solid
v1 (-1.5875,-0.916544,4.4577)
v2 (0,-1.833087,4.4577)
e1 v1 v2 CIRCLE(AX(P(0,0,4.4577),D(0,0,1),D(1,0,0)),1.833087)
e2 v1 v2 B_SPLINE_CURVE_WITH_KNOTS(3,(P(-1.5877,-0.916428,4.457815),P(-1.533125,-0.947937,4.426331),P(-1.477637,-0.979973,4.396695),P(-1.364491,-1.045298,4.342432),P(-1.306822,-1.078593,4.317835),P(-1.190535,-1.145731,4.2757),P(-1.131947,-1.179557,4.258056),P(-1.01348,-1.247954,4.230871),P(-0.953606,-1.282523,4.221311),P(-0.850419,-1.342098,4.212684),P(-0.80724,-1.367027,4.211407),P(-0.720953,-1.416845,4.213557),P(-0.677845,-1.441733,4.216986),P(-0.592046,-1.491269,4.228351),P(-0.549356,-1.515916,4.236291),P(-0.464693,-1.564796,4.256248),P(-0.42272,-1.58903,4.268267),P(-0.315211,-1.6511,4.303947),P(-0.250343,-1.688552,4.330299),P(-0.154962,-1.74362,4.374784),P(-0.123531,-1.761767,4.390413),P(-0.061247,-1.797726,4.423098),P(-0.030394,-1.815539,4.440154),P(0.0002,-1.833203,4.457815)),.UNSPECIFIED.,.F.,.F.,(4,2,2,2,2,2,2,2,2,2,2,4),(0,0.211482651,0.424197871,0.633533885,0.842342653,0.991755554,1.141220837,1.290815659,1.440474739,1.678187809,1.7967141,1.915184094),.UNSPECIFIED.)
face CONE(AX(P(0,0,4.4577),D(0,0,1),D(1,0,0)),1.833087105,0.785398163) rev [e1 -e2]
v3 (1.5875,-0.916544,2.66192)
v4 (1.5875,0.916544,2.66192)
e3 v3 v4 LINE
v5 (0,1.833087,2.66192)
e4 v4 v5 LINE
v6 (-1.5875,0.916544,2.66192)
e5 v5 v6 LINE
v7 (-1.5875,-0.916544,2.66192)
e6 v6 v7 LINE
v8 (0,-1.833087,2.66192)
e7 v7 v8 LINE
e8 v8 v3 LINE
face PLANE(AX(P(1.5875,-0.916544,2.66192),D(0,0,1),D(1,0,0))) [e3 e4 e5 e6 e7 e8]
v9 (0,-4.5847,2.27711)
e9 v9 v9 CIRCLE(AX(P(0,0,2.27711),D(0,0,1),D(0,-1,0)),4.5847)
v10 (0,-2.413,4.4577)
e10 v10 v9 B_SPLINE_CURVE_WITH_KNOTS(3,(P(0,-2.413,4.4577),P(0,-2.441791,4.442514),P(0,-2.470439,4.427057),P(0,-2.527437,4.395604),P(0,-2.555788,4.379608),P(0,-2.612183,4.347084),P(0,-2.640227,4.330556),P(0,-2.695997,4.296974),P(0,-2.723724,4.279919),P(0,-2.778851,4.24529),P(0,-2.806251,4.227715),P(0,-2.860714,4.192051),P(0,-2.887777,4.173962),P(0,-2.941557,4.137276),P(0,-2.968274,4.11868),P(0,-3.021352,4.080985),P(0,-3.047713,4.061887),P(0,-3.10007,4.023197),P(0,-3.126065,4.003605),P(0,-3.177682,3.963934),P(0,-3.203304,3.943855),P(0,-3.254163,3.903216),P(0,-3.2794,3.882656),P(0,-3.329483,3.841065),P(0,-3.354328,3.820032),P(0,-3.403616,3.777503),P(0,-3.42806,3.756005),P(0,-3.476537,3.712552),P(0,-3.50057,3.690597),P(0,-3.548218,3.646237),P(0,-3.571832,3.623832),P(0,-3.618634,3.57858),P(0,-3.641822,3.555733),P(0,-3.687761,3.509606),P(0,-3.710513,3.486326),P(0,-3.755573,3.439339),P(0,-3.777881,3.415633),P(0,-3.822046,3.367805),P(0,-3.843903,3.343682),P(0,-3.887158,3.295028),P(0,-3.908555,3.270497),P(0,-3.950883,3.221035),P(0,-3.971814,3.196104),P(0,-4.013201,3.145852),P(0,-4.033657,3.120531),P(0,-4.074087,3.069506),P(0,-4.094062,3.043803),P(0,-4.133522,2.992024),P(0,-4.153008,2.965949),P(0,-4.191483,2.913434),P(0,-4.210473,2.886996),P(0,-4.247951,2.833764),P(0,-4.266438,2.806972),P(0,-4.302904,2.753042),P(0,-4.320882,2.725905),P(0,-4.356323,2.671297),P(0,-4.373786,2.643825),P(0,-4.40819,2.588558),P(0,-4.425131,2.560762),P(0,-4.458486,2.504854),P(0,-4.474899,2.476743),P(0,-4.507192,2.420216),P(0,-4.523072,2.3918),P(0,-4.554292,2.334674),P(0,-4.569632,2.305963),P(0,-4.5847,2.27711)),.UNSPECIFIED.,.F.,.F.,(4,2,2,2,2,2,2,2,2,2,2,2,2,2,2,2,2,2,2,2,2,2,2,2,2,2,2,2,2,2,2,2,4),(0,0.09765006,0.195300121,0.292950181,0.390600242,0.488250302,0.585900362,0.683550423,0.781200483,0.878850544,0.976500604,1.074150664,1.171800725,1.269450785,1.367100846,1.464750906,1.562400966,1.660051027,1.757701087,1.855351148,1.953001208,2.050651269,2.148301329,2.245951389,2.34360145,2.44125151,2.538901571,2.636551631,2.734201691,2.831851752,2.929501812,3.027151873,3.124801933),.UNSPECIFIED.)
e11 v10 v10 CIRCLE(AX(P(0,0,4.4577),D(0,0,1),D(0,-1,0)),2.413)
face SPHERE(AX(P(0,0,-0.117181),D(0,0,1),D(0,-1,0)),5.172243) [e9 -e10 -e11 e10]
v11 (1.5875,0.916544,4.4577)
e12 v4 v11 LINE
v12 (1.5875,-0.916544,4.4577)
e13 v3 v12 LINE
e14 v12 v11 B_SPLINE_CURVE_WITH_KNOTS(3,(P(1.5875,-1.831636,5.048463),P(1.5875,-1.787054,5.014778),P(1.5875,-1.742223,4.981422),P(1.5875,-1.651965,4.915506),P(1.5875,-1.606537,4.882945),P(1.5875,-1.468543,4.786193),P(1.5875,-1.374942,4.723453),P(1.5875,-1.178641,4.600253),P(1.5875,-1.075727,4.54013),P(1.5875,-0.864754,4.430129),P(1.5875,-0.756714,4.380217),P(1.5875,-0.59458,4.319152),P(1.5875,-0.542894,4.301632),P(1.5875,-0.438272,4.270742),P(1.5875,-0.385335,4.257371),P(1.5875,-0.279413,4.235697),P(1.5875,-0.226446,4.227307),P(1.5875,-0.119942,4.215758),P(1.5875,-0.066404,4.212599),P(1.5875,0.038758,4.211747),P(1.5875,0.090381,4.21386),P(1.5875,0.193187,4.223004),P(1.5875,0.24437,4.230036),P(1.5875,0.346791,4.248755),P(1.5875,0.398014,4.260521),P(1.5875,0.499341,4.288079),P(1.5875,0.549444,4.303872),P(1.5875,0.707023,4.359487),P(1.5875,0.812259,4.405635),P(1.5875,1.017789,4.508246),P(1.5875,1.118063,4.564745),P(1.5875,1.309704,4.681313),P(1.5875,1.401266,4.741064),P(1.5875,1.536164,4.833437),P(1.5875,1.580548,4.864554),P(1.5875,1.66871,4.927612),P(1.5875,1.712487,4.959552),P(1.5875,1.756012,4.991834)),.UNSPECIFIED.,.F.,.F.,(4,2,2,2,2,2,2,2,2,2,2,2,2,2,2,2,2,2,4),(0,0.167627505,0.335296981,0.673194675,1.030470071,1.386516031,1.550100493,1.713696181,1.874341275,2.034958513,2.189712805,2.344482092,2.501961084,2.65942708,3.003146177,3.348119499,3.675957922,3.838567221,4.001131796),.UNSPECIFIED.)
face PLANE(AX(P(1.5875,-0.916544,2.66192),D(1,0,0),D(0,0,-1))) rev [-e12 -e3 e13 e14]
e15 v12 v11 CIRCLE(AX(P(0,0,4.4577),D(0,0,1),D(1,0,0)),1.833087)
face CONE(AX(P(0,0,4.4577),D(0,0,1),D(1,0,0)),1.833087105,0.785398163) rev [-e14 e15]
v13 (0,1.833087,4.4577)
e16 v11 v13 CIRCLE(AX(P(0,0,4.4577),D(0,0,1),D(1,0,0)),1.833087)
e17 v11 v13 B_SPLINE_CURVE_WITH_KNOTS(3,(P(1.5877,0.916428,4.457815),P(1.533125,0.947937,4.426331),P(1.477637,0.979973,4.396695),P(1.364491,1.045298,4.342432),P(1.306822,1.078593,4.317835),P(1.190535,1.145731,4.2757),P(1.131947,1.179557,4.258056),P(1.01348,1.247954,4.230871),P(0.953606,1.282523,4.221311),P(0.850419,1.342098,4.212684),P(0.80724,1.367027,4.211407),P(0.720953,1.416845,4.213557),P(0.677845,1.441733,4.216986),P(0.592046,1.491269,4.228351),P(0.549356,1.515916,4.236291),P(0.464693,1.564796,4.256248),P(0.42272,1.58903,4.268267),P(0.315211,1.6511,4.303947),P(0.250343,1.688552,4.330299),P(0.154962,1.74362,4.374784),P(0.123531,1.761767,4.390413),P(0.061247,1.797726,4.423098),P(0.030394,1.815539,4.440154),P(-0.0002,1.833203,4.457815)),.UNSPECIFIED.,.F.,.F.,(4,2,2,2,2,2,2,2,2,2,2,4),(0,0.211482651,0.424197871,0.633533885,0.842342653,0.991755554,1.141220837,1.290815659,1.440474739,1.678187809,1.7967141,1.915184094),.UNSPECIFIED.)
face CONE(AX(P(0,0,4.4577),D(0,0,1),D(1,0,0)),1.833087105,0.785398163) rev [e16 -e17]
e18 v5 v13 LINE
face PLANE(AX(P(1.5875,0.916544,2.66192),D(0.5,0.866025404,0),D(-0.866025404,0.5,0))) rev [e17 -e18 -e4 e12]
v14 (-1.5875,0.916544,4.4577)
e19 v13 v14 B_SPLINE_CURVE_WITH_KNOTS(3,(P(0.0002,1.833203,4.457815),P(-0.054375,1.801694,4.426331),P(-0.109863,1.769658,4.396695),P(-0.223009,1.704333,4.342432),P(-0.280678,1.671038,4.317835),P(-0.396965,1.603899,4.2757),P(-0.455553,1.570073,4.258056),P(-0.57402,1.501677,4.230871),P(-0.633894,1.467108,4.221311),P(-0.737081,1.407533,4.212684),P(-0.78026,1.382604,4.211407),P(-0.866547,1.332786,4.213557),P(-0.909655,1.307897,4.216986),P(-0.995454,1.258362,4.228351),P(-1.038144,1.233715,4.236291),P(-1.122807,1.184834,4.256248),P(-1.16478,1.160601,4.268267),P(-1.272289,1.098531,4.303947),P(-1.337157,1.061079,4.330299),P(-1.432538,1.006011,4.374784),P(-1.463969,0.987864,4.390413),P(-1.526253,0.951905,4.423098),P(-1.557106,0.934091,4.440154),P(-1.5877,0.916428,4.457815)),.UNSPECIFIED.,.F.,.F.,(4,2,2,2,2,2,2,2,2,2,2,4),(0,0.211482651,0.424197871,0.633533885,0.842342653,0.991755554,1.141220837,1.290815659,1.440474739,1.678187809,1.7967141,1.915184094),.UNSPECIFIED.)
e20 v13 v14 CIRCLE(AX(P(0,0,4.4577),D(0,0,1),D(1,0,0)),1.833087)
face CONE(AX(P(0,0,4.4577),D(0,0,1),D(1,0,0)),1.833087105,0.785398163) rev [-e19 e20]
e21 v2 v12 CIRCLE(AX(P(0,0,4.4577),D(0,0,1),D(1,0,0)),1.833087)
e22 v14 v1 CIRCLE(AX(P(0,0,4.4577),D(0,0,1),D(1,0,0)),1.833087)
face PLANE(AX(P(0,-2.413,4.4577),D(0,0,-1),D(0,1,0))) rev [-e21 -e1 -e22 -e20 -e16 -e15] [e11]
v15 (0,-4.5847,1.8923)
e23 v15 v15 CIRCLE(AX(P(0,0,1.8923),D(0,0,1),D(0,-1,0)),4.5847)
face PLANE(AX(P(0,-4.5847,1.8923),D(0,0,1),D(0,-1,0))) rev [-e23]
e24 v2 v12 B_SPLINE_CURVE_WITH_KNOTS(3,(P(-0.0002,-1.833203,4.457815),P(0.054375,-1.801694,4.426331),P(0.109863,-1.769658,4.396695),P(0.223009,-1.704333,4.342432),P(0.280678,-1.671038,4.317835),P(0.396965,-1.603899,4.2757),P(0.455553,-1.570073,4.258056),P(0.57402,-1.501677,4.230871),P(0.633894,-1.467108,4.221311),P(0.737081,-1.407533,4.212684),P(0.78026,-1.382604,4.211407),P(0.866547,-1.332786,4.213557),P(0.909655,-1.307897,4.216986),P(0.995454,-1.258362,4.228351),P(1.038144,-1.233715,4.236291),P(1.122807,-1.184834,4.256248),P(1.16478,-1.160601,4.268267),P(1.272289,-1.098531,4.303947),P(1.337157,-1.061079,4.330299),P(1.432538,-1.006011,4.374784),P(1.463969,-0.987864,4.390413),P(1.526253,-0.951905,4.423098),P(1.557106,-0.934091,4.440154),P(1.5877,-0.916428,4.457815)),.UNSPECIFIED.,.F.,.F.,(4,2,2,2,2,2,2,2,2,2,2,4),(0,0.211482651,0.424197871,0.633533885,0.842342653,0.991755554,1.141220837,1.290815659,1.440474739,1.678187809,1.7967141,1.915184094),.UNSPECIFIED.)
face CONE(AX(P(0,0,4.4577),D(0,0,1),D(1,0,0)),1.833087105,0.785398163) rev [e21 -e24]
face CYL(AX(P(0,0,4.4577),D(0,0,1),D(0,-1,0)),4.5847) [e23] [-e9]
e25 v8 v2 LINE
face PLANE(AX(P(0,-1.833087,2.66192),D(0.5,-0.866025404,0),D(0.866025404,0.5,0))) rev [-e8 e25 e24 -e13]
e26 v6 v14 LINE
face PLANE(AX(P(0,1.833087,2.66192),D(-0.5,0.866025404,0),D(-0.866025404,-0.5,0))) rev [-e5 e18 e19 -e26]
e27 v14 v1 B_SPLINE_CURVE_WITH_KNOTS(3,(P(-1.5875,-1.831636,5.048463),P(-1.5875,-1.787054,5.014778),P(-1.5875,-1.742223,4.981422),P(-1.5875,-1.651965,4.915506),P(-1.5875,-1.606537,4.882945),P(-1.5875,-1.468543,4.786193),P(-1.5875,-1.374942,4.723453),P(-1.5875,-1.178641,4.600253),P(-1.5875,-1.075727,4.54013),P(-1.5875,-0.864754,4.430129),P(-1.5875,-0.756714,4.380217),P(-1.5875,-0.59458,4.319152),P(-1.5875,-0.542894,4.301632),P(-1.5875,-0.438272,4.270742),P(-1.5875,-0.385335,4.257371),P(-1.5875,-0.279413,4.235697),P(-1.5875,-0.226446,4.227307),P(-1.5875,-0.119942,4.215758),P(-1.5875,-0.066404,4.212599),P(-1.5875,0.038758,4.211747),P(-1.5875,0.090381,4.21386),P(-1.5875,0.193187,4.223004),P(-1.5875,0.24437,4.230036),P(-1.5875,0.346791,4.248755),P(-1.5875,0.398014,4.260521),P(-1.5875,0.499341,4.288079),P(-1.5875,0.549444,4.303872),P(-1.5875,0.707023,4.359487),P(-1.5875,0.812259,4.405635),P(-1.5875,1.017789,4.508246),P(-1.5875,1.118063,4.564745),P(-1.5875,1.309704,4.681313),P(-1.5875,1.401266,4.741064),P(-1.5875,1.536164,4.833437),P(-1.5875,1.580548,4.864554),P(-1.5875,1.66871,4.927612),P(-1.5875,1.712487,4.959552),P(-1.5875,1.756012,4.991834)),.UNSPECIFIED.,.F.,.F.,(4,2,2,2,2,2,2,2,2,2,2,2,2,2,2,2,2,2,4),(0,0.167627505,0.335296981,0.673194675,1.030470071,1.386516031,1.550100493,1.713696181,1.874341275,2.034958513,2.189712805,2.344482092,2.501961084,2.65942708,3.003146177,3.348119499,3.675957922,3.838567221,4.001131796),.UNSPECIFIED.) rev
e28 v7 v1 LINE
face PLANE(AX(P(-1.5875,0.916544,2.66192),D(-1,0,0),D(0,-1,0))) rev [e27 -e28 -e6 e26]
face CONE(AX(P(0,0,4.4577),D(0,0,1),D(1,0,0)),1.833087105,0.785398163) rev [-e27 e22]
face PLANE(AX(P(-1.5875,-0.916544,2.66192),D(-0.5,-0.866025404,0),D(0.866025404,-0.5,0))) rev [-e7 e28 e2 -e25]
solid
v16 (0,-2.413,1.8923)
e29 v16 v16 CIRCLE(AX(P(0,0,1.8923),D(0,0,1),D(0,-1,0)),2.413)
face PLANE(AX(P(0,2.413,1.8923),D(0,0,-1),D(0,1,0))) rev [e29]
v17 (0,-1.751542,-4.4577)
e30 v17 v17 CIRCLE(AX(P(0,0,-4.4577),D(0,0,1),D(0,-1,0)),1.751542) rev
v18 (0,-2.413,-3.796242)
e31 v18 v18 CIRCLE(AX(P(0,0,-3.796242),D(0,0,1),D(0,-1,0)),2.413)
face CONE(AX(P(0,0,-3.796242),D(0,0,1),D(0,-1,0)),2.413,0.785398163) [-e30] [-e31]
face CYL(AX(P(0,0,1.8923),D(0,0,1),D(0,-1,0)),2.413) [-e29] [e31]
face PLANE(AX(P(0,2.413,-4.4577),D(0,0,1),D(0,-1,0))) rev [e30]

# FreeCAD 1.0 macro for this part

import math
import FreeCAD as App
import Part
import Sketcher
Q = App.Units.Quantity


def edges_at(feature, points):
    """Names of the edges that pass closest to the given points."""
    edges = feature.Shape.Edges
    near = lambda p: min(range(len(edges)), key=lambda i: edges[i].distToShape(Part.Vertex(*p))[0])
    return sorted({f"Edge{near(p) + 1}" for p in points})


def add_polygon(sketch, points):
    """Adds a closed chain of lines whose ends are joined by coincident constraints."""
    first, n = sketch.GeometryCount, len(points)
    for a, b in zip(points, points[1:] + points[:1]):
        sketch.addGeometry(Part.LineSegment(App.Vector(*a, 0), App.Vector(*b, 0)), False)
    for i in range(n):
        sketch.addConstraint(Sketcher.Constraint("Coincident", first + i, 2, first + (i + 1) % n, 1))

doc = App.newDocument("Part")
params = doc.addObject("Spreadsheet::Sheet", "Params")
for row, (alias, value) in enumerate([
    ("sketch1_height", "0.25 in"),
    ("sketch1_width", "0.095 in"),
    ("revolution_angle", "360 deg"),
    ("chamfer_size", "0.661458 mm"),
    ("sketch2_width", "0.095 in"),
    ("sketch2_height", "0.101 in"),
    ("revolution2_angle", "360 deg"),
    ("pocket1_length", "0.0707 in"),
    ("pocket2_length", "0.0707 in"),
    ("pocket2_taper", "-45 deg"),
], start=1):
    params.set(f"A{row}", alias)
    params.set(f"B{row}", "=" + value)
    params.setAlias(f"B{row}", alias)

body = doc.addObject("PartDesign::Body", "Body")

# Sketch on YZ plane
sketch1 = doc.addObject("Sketcher::SketchObject", "Sketch")
body.addObject(sketch1)
sketch1.AttachmentSupport = (doc.YZ_Plane, [""])
sketch1.MapMode = "FlatFace"
add_polygon(sketch1, [(2.413, 1.8923), (0, 1.8923), (0, -4.4577), (2.413, -4.4577)])  # lines 0-3
sketch1.addConstraint(Sketcher.Constraint("Horizontal", 0))
sketch1.addConstraint(Sketcher.Constraint("Vertical", 1))
sketch1.addConstraint(Sketcher.Constraint("Horizontal", 2))
sketch1.addConstraint(Sketcher.Constraint("Vertical", 3))
sketch1.addConstraint(Sketcher.Constraint("PointOnObject", 0, 2, -2))
sketch1.addConstraint(Sketcher.Constraint("DistanceY", 1, 2, 1, 1, Q("0.25 in")))
sketch1.addConstraint(Sketcher.Constraint("DistanceX", 0, 2, 0, 1, Q("0.095 in")))
sketch1.addConstraint(Sketcher.Constraint("DistanceY", -1, 1, 0, 2, Q("0.0745 in")))
sketch1.setExpression("Constraints[9]", "Params.sketch1_height")
sketch1.setExpression("Constraints[10]", "Params.sketch1_width")
revolution = doc.addObject("PartDesign::Revolution", "Revolution")
body.addObject(revolution)
revolution.Profile = sketch1
revolution.ReferenceAxis = (sketch1, ["V_Axis"])
revolution.setExpression("Angle", "Params.revolution_angle")
doc.recompute()

chamfer = doc.addObject("PartDesign::Chamfer", "Chamfer")
body.addObject(chamfer)
chamfer.Base = (revolution, edges_at(revolution, [(0, 2.413, -4.458)]))
chamfer.setExpression("Size", "Params.chamfer_size")
body2 = doc.addObject("PartDesign::Body", "Body001")

# Sketch on YZ plane
sketch2 = doc.addObject("Sketcher::SketchObject", "Sketch001")
body2.addObject(sketch2)
sketch2.AttachmentSupport = (doc.getObject("YZ_Plane001"), [""])
sketch2.MapMode = "FlatFace"
sketch2.addGeometry(Part.LineSegment(App.Vector(4.5847, 1.8923, 0), App.Vector(4.5847, 2.27711, 0)), False)
sketch2.addGeometry(Part.ArcOfCircle(Part.Circle(App.Vector(0, -0.117181, 0), App.Vector(0, 0, 1), 5.172243), math.radians(27.575137), math.radians(62.190798)), False)
sketch2.addGeometry(Part.LineSegment(App.Vector(2.413, 4.4577, 0), App.Vector(0, 4.4577, 0)), False)
sketch2.addGeometry(Part.LineSegment(App.Vector(0, 4.4577, 0), App.Vector(0, 1.8923, 0)), False)
sketch2.addGeometry(Part.LineSegment(App.Vector(0, 1.8923, 0), App.Vector(4.5847, 1.8923, 0)), False)
sketch2.addConstraint(Sketcher.Constraint("Coincident", 0, 2, 1, 1))
sketch2.addConstraint(Sketcher.Constraint("Coincident", 1, 2, 2, 1))
sketch2.addConstraint(Sketcher.Constraint("Coincident", 2, 2, 3, 1))
sketch2.addConstraint(Sketcher.Constraint("Coincident", 3, 2, 4, 1))
sketch2.addConstraint(Sketcher.Constraint("Coincident", 4, 2, 0, 1))
sketch2.addConstraint(Sketcher.Constraint("Vertical", 0))
sketch2.addConstraint(Sketcher.Constraint("Horizontal", 2))
sketch2.addConstraint(Sketcher.Constraint("Vertical", 3))
sketch2.addConstraint(Sketcher.Constraint("Horizontal", 4))
sketch2.addConstraint(Sketcher.Constraint("PointOnObject", 1, 3, -2))
sketch2.addConstraint(Sketcher.Constraint("PointOnObject", 2, 2, -2))
sketch2.addConstraint(Sketcher.Constraint("DistanceX", 2, 2, 2, 1, Q("0.095 in")))
sketch2.addConstraint(Sketcher.Constraint("DistanceY", 3, 2, 3, 1, Q("0.101 in")))
sketch2.addConstraint(Sketcher.Constraint("DistanceX", 4, 1, 4, 2, Q("0.1805 in")))
sketch2.addConstraint(Sketcher.Constraint("DistanceY", -1, 1, 1, 2, Q("0.1755 in")))
sketch2.addConstraint(Sketcher.Constraint("Radius", 1, 5.172243))
sketch2.setExpression("Constraints[11]", "Params.sketch2_width")
sketch2.setExpression("Constraints[12]", "Params.sketch2_height")
revolution2 = doc.addObject("PartDesign::Revolution", "Revolution001")
body2.addObject(revolution2)
revolution2.Profile = sketch2
revolution2.ReferenceAxis = (sketch2, ["V_Axis"])
revolution2.setExpression("Angle", "Params.revolution2_angle")

# Sketch on XY plane
sketch3 = doc.addObject("Sketcher::SketchObject", "Sketch002")
body2.addObject(sketch3)
sketch3.AttachmentSupport = (doc.getObject("XY_Plane001"), [""])
sketch3.MapMode = "FlatFace"
sketch3.AttachmentOffset = App.Placement(App.Vector(0, 0, 0.1755 * 25.4), App.Rotation())
add_polygon(sketch3, [(1.5875, -0.916544), (1.5875, 0.916544), (0, 1.833087), (-1.5875, 0.916544), (-1.5875, -0.916544), (0, -1.833087)])  # lines 0-5
sketch3.addConstraint(Sketcher.Constraint("Vertical", 0))
sketch3.addConstraint(Sketcher.Constraint("Vertical", 3))
sketch3.addConstraint(Sketcher.Constraint("Symmetric", 0, 2, 3, 2, -1, 1))
sketch3.addConstraint(Sketcher.Constraint("Symmetric", 1, 2, 4, 2, -1, 1))
sketch3.addConstraint(Sketcher.Constraint("PointOnObject", 1, 2, -2))
sketch3.addConstraint(Sketcher.Constraint("Parallel", 2, 5))
sketch3.addConstraint(Sketcher.Constraint("Horizontal", 0, 2, 2, 2))
sketch3.addConstraint(Sketcher.Constraint("Angle", 1, Q("150 deg")))
sketch3.addConstraint(Sketcher.Constraint("DistanceX", -1, 1, 0, 2, Q("0.0625 in")))
sketch3.addConstraint(Sketcher.Constraint("DistanceY", 0, 1, 0, 2, 1.833087))
pocket1 = doc.addObject("PartDesign::Pocket", "Pocket")
body2.addObject(pocket1)
pocket1.Profile = sketch3
pocket1.setExpression("Length", "Params.pocket1_length")

# Sketch on XY plane
sketch4 = doc.addObject("Sketcher::SketchObject", "Sketch003")
body2.addObject(sketch4)
sketch4.AttachmentSupport = (doc.getObject("XY_Plane001"), [""])
sketch4.MapMode = "FlatFace"
sketch4.AttachmentOffset = App.Placement(App.Vector(0, 0, 0.1755 * 25.4), App.Rotation())
sketch4.addGeometry(Part.Circle(App.Vector(0, 0, 0), App.Vector(0, 0, 1), 1.833087), False)
sketch4.addConstraint(Sketcher.Constraint("Coincident", 0, 3, -1, 1))
sketch4.addConstraint(Sketcher.Constraint("Diameter", 0, 3.666174))
pocket2 = doc.addObject("PartDesign::Pocket", "Pocket001")
body2.addObject(pocket2)
pocket2.Profile = sketch4
pocket2.setExpression("Length", "Params.pocket2_length")
pocket2.setExpression("TaperAngle", "Params.pocket2_taper")

doc.recompute()
